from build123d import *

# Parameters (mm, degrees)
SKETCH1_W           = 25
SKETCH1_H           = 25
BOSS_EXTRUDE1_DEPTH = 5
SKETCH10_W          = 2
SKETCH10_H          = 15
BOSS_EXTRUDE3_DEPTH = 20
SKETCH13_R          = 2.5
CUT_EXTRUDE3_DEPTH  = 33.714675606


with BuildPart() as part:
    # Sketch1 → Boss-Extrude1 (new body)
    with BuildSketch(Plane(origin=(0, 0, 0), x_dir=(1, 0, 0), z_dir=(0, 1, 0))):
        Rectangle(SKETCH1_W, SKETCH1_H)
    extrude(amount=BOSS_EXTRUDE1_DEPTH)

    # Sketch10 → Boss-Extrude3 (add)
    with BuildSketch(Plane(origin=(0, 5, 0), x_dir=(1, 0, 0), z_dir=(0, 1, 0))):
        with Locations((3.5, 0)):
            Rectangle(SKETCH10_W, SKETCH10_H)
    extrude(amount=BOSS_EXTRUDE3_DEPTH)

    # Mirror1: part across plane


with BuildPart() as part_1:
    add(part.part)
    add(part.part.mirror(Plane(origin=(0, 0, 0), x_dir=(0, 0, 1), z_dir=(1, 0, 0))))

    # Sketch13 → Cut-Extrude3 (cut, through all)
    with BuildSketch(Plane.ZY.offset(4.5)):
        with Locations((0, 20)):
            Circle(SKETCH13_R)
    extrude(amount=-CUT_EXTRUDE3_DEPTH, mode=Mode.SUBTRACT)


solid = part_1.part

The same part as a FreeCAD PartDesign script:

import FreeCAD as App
import Part
import Sketcher

V = App.Vector
Q = App.Units.Quantity


def add_polygon(sketch, points):
    """Adds a closed chain of lines whose ends are joined by coincident constraints."""
    first, n = sketch.GeometryCount, len(points)
    for a, b in zip(points, points[1:] + points[:1]):
        sketch.addGeometry(Part.LineSegment(App.Vector(*a, 0), App.Vector(*b, 0)), False)
    for i in range(n):
        sketch.addConstraint(Sketcher.Constraint("Coincident", first + i, 2, first + (i + 1) % n, 1))

doc = App.newDocument("Part")
body = doc.addObject("PartDesign::Body", "Body")

# Sketch on XZ plane
sketch1 = doc.addObject("Sketcher::SketchObject", "Sketch")
body.addObject(sketch1)
sketch1.AttachmentSupport = (doc.XZ_Plane, [""])
sketch1.MapMode = "FlatFace"
add_polygon(sketch1, [(-12, -12), (-12, 12), (12, 12), (12, -12)])  # lines 0-3
sketch1.addConstraint([
    Sketcher.Constraint("Vertical", 0),
    Sketcher.Constraint("Horizontal", 1),
    Sketcher.Constraint("Vertical", 2),
    Sketcher.Constraint("Horizontal", 3),
    Sketcher.Constraint("Symmetric", 0, 2, 2, 2, -1, 1),
    Sketcher.Constraint("Equal", 3, 0),
    Sketcher.Constraint("DistanceX", 1, 1, 1, 2, Q("25 mm")),
])
pad1 = doc.addObject("PartDesign::Pad", "Pad")
body.addObject(pad1)
pad1.Profile = sketch1
pad1.Length = 5
pad1.Reversed = True

# Sketch on XZ plane
sketch2 = doc.addObject("Sketcher::SketchObject", "Sketch001")
body.addObject(sketch2)
sketch2.AttachmentSupport = (doc.XZ_Plane, [""])
sketch2.MapMode = "FlatFace"
sketch2.AttachmentOffset = App.Placement(V(0, 0, -5), App.Rotation())
add_polygon(sketch2, [(2.5, -7.5), (2.5, 7.5), (4.5, 7.5), (4.5, -7.5)])  # lines 0-3
sketch2.addConstraint([
    Sketcher.Constraint("Vertical", 0),
    Sketcher.Constraint("Horizontal", 1),
    Sketcher.Constraint("Vertical", 2),
    Sketcher.Constraint("Horizontal", 3),
    Sketcher.Constraint("DistanceX", 1, 1, 1, 2, Q("2 mm")),
    Sketcher.Constraint("DistanceY", 0, 1, 0, 2, Q("15 mm")),
    Sketcher.Constraint("DistanceX", -1, 1, 0, 2, Q("2.5 mm")),
    Sketcher.Constraint("DistanceY", -1, 1, 0, 2, Q("7.5 mm")),
])
pad2 = doc.addObject("PartDesign::Pad", "Pad001")
body.addObject(pad2)
pad2.Profile = sketch2
pad2.Length = 20
pad2.Reversed = True
body2 = doc.addObject("PartDesign::Body", "Body001")
doc.recompute()

body2.BaseFeature = body
doc.recompute()

mirroring = doc.addObject("Part::Mirroring", "Mirroring")
mirroring.Source = body
mirroring.Base = V(0, 0, 0)
mirroring.Normal = V(1, 0, 0)
body3 = doc.addObject("PartDesign::Body", "Body002")
body3.BaseFeature = mirroring
boolean = doc.addObject("PartDesign::Boolean", "Boolean")
body2.addObject(boolean)
boolean.Type = "Fuse"
boolean.addObjects([body3])
doc.recompute()

# Sketch on YZ plane
sketch3 = doc.addObject("Sketcher::SketchObject", "Sketch002")
body2.addObject(sketch3)
sketch3.AttachmentSupport = (doc.getObject("YZ_Plane001"), [""])
sketch3.MapMode = "FlatFace"
sketch3.AttachmentOffset = App.Placement(V(0, 0, -4.5), App.Rotation())
sketch3.addGeometry(Part.Circle(V(20, 0, 0), V(0, 0, 1), 2.5), False)
sketch3.addConstraint([
    Sketcher.Constraint("PointOnObject", 0, 3, -1),
    Sketcher.Constraint("Diameter", 0, Q("5 mm")),
    Sketcher.Constraint("DistanceX", -1, 1, 0, 3, Q("20 mm")),
])
pocket1 = doc.addObject("PartDesign::Pocket", "Pocket")
body2.addObject(pocket1)
pocket1.Profile = sketch3
pocket1.Type = "ThroughAll"
pocket1.Reversed = True
mirroring.Visibility = False

doc.recompute()
